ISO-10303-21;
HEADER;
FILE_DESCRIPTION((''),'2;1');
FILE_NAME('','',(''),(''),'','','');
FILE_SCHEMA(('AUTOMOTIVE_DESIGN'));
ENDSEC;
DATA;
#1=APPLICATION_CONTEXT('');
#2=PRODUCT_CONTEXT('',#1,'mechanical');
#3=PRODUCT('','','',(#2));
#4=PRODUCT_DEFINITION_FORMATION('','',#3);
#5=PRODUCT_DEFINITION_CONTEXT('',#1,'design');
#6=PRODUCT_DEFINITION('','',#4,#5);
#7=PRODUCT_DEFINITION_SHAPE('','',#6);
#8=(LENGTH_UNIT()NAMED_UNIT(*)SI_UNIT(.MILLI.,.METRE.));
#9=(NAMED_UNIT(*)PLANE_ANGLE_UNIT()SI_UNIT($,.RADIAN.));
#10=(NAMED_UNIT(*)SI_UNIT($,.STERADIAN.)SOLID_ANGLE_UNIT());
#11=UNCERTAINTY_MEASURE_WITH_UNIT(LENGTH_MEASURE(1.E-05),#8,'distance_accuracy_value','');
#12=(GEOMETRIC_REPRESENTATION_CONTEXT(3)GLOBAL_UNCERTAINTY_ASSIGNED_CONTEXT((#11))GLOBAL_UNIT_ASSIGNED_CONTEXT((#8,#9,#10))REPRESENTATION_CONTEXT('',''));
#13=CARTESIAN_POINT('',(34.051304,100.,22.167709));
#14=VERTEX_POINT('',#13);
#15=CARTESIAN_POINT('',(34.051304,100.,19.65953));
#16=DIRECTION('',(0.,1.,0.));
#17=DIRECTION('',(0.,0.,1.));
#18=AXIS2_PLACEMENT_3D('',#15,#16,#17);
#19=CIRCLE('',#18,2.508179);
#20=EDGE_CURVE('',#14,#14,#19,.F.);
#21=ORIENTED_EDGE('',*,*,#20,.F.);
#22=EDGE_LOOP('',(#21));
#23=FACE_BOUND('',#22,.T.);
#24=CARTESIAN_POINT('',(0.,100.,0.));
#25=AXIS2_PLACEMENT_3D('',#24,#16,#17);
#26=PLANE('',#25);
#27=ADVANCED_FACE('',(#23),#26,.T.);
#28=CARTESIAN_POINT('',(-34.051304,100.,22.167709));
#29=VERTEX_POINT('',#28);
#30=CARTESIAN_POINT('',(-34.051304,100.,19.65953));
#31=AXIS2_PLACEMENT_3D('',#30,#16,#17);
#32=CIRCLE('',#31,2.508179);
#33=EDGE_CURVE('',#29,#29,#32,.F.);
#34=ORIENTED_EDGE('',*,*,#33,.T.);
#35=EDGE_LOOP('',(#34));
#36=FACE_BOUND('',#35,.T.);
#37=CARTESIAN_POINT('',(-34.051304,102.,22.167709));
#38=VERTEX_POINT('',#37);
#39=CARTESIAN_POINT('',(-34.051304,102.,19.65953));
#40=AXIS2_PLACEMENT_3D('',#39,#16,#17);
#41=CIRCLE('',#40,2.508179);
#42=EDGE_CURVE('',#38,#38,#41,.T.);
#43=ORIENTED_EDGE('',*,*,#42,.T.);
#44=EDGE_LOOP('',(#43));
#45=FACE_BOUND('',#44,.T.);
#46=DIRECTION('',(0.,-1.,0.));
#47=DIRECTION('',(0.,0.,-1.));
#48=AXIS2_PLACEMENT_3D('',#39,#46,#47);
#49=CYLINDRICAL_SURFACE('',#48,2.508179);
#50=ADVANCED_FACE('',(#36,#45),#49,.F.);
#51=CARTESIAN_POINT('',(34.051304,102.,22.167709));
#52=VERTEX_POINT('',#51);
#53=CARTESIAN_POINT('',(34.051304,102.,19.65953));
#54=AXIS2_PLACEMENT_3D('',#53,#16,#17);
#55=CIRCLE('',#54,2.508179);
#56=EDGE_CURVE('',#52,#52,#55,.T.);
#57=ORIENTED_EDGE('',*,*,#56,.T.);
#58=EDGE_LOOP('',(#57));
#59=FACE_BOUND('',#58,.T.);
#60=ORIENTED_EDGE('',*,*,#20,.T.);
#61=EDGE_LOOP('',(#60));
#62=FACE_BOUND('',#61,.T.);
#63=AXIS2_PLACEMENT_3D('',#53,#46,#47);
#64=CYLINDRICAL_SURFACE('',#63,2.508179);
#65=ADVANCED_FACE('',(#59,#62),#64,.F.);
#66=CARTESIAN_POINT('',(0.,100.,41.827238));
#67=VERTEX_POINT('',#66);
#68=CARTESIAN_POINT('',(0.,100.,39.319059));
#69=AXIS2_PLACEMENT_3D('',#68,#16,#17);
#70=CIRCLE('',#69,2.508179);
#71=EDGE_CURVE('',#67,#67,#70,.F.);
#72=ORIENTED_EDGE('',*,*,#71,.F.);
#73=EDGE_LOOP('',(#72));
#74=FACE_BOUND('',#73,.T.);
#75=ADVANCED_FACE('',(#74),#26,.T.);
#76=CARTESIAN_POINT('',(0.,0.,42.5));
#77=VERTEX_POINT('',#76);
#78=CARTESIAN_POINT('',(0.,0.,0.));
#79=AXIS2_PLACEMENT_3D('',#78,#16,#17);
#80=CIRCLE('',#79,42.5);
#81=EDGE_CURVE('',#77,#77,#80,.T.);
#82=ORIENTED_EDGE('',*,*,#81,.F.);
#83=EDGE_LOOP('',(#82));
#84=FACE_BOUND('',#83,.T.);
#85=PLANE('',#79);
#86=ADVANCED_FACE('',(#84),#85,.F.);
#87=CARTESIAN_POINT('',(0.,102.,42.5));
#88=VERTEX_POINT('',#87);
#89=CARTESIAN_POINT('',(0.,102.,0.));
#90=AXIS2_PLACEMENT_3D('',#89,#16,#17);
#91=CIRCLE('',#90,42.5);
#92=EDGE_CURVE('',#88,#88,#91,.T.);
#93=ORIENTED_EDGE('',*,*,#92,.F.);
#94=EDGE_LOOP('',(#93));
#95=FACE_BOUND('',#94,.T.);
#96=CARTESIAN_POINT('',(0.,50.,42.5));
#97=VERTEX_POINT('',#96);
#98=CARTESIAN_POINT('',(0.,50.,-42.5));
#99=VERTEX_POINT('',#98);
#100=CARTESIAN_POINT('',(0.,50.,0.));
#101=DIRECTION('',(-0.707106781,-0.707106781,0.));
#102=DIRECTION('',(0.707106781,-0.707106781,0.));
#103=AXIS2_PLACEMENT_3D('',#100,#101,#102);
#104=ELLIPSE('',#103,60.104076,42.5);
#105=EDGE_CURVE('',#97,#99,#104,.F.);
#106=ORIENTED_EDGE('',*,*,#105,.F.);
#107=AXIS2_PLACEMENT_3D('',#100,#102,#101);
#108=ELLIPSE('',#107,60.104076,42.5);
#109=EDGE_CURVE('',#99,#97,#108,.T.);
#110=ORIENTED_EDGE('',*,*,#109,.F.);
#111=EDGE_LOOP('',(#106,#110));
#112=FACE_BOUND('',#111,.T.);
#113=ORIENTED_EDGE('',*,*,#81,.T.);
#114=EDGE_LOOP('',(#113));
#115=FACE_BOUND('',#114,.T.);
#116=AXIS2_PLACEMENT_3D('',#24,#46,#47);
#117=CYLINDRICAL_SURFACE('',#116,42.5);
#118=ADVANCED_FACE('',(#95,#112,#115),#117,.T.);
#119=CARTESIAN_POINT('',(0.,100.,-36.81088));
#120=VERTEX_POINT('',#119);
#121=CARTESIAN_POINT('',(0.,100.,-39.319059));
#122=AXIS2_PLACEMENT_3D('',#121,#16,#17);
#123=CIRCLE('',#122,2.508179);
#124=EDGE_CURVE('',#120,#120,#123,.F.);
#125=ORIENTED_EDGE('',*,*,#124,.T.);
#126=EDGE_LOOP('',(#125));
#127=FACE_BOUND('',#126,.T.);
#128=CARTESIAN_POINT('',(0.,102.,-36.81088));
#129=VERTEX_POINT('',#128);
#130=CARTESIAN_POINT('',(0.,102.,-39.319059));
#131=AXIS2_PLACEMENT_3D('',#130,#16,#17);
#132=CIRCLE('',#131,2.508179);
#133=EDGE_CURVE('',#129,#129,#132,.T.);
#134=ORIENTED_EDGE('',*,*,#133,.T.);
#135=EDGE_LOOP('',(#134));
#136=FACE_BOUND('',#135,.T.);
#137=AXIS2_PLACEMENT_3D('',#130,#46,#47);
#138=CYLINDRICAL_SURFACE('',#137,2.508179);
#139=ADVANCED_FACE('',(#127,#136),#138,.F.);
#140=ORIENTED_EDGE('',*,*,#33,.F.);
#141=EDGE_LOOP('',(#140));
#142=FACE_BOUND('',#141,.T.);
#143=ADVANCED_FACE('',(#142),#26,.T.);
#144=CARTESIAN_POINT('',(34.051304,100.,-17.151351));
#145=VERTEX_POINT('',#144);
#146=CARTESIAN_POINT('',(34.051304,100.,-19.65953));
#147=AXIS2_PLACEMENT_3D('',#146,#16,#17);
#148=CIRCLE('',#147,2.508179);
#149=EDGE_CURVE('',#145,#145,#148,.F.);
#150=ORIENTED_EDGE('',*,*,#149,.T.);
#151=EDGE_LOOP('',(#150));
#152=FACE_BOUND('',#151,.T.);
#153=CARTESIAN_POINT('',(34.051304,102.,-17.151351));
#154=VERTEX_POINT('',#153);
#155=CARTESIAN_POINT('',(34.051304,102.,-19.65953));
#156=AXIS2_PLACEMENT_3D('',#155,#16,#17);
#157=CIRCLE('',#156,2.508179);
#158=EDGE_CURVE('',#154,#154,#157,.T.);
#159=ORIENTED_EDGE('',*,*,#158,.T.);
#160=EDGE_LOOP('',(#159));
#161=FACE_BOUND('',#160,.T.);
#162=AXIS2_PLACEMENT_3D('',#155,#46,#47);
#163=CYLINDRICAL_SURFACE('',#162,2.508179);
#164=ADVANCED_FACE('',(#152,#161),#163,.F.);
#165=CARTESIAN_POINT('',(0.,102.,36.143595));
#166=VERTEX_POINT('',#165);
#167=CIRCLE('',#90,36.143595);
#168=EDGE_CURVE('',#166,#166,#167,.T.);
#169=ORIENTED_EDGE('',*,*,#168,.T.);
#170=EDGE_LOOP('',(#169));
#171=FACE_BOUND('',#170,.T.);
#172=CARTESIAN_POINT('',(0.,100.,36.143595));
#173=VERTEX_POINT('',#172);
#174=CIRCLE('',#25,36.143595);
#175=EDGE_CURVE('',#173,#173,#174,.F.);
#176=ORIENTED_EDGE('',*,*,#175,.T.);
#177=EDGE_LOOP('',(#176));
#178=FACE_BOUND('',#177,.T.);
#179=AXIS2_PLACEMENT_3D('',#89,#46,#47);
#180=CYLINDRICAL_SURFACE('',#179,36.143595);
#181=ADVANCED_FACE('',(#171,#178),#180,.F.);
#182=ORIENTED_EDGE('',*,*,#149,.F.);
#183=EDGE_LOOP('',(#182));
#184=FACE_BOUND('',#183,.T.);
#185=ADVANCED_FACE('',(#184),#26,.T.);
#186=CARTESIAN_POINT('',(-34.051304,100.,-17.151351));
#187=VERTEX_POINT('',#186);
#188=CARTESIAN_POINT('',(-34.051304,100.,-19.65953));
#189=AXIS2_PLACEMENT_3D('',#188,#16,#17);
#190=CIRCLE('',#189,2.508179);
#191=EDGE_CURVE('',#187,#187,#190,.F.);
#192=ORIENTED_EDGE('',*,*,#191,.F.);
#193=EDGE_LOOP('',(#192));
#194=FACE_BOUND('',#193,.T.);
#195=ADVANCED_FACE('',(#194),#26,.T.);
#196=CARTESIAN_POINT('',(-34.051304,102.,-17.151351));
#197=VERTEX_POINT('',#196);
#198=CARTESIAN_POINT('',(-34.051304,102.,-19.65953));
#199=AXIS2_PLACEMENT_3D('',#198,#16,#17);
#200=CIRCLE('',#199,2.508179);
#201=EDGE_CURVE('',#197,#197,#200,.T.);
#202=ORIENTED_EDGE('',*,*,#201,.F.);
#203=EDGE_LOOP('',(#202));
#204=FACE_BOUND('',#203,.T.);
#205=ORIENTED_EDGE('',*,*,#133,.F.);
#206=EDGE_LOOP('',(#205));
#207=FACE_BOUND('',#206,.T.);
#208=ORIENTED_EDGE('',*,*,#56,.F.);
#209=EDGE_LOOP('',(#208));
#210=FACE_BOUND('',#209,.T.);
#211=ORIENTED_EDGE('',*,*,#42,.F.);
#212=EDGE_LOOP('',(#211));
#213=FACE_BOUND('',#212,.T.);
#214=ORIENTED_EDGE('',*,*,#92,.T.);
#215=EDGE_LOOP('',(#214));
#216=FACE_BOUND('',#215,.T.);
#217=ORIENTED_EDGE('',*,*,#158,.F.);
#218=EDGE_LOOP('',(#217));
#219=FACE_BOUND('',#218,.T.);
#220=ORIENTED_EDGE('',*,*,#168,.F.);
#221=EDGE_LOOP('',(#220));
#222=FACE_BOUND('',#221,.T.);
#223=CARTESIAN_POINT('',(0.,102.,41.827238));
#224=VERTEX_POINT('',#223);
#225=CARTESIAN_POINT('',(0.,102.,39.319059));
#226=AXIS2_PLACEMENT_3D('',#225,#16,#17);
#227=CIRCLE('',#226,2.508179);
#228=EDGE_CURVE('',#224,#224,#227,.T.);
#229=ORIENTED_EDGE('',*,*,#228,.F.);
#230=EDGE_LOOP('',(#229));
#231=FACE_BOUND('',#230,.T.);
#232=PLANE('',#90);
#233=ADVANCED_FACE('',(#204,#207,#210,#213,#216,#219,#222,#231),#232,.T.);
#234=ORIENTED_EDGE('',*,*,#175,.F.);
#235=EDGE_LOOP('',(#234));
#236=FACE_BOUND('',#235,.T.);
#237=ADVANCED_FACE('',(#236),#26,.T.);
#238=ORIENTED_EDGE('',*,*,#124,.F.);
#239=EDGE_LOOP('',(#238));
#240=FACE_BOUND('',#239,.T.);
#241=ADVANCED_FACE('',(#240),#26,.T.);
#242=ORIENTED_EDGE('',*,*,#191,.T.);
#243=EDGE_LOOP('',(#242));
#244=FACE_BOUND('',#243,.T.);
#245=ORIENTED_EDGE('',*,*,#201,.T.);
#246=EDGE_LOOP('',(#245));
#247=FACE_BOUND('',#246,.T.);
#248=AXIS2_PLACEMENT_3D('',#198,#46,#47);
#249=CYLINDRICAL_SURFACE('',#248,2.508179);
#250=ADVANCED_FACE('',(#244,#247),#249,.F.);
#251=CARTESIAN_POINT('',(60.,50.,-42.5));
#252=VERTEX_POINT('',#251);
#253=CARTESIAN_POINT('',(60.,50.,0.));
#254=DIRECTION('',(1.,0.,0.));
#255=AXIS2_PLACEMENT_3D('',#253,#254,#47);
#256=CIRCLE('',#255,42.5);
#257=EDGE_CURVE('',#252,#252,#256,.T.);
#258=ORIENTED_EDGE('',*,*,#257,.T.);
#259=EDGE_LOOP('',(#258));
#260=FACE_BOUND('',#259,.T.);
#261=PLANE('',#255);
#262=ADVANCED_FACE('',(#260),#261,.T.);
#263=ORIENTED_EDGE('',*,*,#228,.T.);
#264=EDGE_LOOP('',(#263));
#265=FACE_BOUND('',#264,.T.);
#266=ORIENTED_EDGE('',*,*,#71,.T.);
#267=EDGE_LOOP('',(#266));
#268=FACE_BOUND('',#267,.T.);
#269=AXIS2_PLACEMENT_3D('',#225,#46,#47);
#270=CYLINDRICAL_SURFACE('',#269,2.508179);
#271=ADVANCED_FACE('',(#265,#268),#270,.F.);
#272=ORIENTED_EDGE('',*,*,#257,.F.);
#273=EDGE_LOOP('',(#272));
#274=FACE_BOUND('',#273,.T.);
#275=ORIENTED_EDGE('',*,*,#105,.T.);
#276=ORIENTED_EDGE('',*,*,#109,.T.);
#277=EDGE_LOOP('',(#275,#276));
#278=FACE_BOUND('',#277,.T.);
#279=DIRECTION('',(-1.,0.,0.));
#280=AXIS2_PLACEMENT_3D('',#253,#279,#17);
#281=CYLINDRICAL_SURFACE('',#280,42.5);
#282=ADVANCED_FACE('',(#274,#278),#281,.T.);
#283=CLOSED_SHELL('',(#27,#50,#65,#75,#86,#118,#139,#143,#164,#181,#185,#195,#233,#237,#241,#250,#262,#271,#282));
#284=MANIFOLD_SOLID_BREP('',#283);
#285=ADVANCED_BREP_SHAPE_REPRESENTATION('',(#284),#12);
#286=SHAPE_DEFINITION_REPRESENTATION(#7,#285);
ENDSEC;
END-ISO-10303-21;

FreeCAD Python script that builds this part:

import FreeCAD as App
import Part
import Sketcher
from FreeCAD import Vector
Q = App.Units.Quantity

doc = App.newDocument("Part")
params = doc.addObject("Spreadsheet::Sheet", "Params")
for row, (alias, value) in enumerate([
    ("sketch1_diameter", "85 mm"),
    ("pad1_length", "100 mm"),
    ("sketch2_diameter", "85 mm"),
    ("pad2_length", "60 mm"),
    ("sketch3_diameter", "85 mm"),
    ("pad3_length", "2 mm"),
], start=1):
    params.set(f"A{row}", alias)
    params.set(f"B{row}", "=" + value)
    params.setAlias(f"B{row}", alias)

body = doc.addObject("PartDesign::Body", "Body")

sketch1 = body.newObject("Sketcher::SketchObject", "Sketch")
sketch1.AttachmentSupport = (doc.getObject("XZ_Plane"), [""])
sketch1.MapMode = "FlatFace"
sketch1.addGeometry(Part.Circle(Vector(0, 0, 0), Vector(0, 0, 1), 42), False)
sketch1.addConstraint([
    Sketcher.Constraint("Coincident", 0, 3, -1, 1),
    Sketcher.Constraint("Diameter", 0, Q("85 mm")),
])
sketch1.setExpression("Constraints[1]", "Params.sketch1_diameter")
pad1 = body.newObject("PartDesign::Pad", "Pad")
pad1.Profile = sketch1
pad1.setExpression("Length", "Params.pad1_length")
pad1.Reversed = True

sketch2 = body.newObject("Sketcher::SketchObject", "Sketch001")
sketch2.AttachmentSupport = (doc.getObject("YZ_Plane"), [""])
sketch2.MapMode = "FlatFace"
sketch2.addGeometry(Part.Circle(Vector(50, 0, 0), Vector(0, 0, 1), 42), False)
sketch2.addConstraint([
    Sketcher.Constraint("PointOnObject", 0, 3, -1),
    Sketcher.Constraint("Diameter", 0, Q("85 mm")),
    Sketcher.Constraint("DistanceX", -1, 1, 0, 3, Q("50 mm")),
])
sketch2.setExpression("Constraints[1]", "Params.sketch2_diameter")
pad2 = body.newObject("PartDesign::Pad", "Pad001")
pad2.Profile = sketch2
pad2.setExpression("Length", "Params.pad2_length")

sketch3 = body.newObject("Sketcher::SketchObject", "Sketch002")
sketch3.AttachmentSupport = (doc.getObject("XZ_Plane"), [""])
sketch3.MapMode = "FlatFace"
sketch3.AttachmentOffset = App.Placement(Vector(0, 0, -100), App.Rotation())
sketch3.addGeometry([
    Part.Circle(Vector(0, 0, 0), Vector(0, 0, 1), 42.5),
    Part.Circle(Vector(-34.1, -19.7, 0), Vector(0, 0, 1), 2.5),
    Part.Circle(Vector(0, -39.3, 0), Vector(0, 0, 1), 2.5),
    Part.Circle(Vector(-34.1, 19.7, 0), Vector(0, 0, 1), 2.5),
    Part.Circle(Vector(34.1, -19.7, 0), Vector(0, 0, 1), 2.5),
    Part.Circle(Vector(0, 0, 0), Vector(0, 0, 1), 36.1),
    Part.Circle(Vector(0, 39.3, 0), Vector(0, 0, 1), 2.5),
    Part.Circle(Vector(34.1, 19.7, 0), Vector(0, 0, 1), 2.5),
], False)
sketch3.addConstraint([
    Sketcher.Constraint("Coincident", 0, 3, -1, 1),
    Sketcher.Constraint("Coincident", 5, 3, -1, 1),
    Sketcher.Constraint("Equal", 1, 2),
    Sketcher.Constraint("Equal", 2, 3),
    Sketcher.Constraint("Equal", 3, 4),
    Sketcher.Constraint("Equal", 4, 6),
    Sketcher.Constraint("Equal", 6, 7),
    Sketcher.Constraint("Symmetric", 3, 3, 4, 3, -1, 1),
    Sketcher.Constraint("Symmetric", 2, 3, 6, 3, -1, 1),
    Sketcher.Constraint("Symmetric", 1, 3, 7, 3, -1, 1),
    Sketcher.Constraint("Symmetric", 1, 3, 4, 3, -2),
    Sketcher.Constraint("PointOnObject", 2, 3, -2),
    Sketcher.Constraint("Diameter", 0, Q("85 mm")),
    Sketcher.Constraint("Diameter", 5, Q("72.28719 mm")),
    Sketcher.Constraint("Diameter", 1, Q("5.016358 mm")),
    Sketcher.Constraint("DistanceY", 1, 3, -1, 1, Q("19.65953 mm")),
    Sketcher.Constraint("DistanceY", 2, 3, -1, 1, Q("39.319059 mm")),
    Sketcher.Constraint("DistanceX", 1, 3, 4, 3, Q("68.102609 mm")),
])
sketch3.setExpression("Constraints[12]", "Params.sketch3_diameter")
pad3 = body.newObject("PartDesign::Pad", "Pad002")
pad3.Profile = sketch3
pad3.setExpression("Length", "Params.pad3_length")
pad3.Reversed = True

doc.recompute()
